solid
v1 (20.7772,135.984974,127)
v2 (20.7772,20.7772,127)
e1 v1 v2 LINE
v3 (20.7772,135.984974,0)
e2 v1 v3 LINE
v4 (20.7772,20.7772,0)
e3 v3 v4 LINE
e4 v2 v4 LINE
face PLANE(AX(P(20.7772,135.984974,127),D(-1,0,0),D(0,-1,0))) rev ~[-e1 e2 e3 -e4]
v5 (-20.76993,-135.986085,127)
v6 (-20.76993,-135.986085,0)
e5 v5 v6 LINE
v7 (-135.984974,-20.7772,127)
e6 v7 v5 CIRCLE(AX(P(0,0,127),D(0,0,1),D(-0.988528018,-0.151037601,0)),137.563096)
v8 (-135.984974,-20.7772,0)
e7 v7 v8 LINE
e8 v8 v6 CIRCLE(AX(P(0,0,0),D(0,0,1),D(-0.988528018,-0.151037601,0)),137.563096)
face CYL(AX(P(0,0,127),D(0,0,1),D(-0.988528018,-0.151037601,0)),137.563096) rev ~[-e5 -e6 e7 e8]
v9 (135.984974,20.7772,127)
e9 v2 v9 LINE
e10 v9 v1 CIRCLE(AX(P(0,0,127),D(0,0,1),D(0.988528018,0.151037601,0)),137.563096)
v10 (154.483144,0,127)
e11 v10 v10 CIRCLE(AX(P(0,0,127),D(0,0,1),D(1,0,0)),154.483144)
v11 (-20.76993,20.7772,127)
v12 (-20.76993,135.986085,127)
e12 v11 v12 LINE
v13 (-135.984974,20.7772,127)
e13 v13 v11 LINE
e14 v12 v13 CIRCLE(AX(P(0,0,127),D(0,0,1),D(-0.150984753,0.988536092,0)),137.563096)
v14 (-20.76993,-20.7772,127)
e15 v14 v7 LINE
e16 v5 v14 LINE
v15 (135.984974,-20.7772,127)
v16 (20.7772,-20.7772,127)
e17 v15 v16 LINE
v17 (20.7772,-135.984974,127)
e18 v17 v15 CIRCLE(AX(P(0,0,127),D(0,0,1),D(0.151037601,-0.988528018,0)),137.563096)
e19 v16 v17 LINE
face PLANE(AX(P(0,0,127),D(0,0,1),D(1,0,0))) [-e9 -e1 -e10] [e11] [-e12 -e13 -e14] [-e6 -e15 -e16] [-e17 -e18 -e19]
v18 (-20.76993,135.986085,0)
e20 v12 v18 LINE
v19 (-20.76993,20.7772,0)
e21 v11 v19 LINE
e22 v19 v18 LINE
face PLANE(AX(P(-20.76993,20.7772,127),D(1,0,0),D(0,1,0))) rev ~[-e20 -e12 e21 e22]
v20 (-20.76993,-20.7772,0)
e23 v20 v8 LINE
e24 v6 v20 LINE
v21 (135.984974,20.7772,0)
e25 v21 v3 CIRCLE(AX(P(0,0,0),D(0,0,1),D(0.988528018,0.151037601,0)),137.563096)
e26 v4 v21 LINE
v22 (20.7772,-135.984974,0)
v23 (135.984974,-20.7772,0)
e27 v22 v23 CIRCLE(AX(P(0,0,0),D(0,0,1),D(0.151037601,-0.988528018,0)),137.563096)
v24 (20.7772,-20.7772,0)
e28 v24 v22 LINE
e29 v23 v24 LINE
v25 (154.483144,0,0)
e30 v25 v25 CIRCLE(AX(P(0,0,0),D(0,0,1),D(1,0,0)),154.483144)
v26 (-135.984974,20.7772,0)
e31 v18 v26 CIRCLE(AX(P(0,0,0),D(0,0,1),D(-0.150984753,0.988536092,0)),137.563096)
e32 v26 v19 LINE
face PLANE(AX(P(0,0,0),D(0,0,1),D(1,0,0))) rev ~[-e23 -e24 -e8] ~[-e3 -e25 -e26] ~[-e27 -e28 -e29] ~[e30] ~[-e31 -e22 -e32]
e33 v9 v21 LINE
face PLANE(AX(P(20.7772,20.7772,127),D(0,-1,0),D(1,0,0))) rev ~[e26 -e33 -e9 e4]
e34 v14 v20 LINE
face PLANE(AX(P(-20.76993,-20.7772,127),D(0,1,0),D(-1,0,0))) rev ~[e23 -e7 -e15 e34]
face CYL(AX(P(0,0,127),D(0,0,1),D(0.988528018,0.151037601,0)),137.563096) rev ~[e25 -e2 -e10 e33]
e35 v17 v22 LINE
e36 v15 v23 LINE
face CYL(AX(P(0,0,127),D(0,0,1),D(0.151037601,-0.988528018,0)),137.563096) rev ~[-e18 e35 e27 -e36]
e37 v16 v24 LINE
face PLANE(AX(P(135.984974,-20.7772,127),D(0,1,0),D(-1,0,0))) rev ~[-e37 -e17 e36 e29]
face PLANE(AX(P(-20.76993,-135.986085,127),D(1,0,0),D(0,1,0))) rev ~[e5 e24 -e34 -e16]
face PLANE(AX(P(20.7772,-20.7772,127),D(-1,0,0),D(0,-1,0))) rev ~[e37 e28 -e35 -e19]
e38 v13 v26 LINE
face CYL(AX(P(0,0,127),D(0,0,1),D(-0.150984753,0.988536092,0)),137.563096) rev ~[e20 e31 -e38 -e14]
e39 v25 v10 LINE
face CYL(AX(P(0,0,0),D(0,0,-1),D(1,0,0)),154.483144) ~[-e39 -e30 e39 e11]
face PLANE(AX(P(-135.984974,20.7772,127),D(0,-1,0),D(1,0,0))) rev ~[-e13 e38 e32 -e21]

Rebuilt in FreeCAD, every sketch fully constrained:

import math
import FreeCAD as App
import Part
import Sketcher
from FreeCAD import Vector
Q = App.Units.Quantity

doc = App.newDocument("Part")
params = doc.addObject("Spreadsheet::Sheet", "Params")
for row, (alias, value) in enumerate([
    ("pad1_length", "5 in"),
    ("pocket1_length", "5 in"),
], start=1):
    params.set(f"A{row}", alias)
    params.set(f"B{row}", "=" + value)
    params.setAlias(f"B{row}", alias)

body = doc.addObject("PartDesign::Body", "Body")

sketch1 = body.newObject("Sketcher::SketchObject", "Sketch")
sketch1.AttachmentSupport = (doc.getObject("XY_Plane"), [""])
sketch1.MapMode = "FlatFace"
sketch1.addGeometry(Part.Circle(Vector(0, 0, 0), Vector(0, 0, 1), 154), False)
sketch1.addConstraint([
    Sketcher.Constraint("Coincident", 0, 3, -1, 1),
    Sketcher.Constraint("Diameter", 0, 308.966288),
])
pad1 = body.newObject("PartDesign::Pad", "Pad")
pad1.Profile = sketch1
pad1.setExpression("Length", "Params.pad1_length")

sketch2 = body.newObject("Sketcher::SketchObject", "Sketch001")
sketch2.AttachmentSupport = (doc.getObject("XY_Plane"), [""])
sketch2.MapMode = "FlatFace"
sketch2.AttachmentOffset = App.Placement(Vector(0, 0, 5 * 25.4), App.Rotation())
sketch2.addGeometry([
    Part.LineSegment(Vector(-21, 21, 0), Vector(-21, 136, 0)),
    Part.ArcOfCircle(Part.Circle(Vector(0, 0, 0), Vector(0, 0, 1), 138), math.radians(99), math.radians(171)),
    Part.LineSegment(Vector(-136, 21, 0), Vector(-21, 21, 0)),
    Part.LineSegment(Vector(21, 21, 0), Vector(136, 21, 0)),
    Part.ArcOfCircle(Part.Circle(Vector(0, 0, 0), Vector(0, 0, 1), 138), math.radians(9), math.radians(81)),
    Part.LineSegment(Vector(21, 136, 0), Vector(21, 21, 0)),
    Part.ArcOfCircle(Part.Circle(Vector(0, 0, 0), Vector(0, 0, 1), 138), math.radians(-81), math.radians(-9)),
    Part.LineSegment(Vector(136, -21, 0), Vector(21, -21, 0)),
    Part.LineSegment(Vector(21, -21, 0), Vector(21, -136, 0)),
    Part.ArcOfCircle(Part.Circle(Vector(0, 0, 0), Vector(0, 0, 1), 138), math.radians(-171), math.radians(-99)),
    Part.LineSegment(Vector(-21, -136, 0), Vector(-21, -21, 0)),
    Part.LineSegment(Vector(-21, -21, 0), Vector(-136, -21, 0)),
], False)
sketch2.addConstraint([
    Sketcher.Constraint("Coincident", 0, 2, 1, 1),
    Sketcher.Constraint("Coincident", 1, 2, 2, 1),
    Sketcher.Constraint("Coincident", 2, 2, 0, 1),
    Sketcher.Constraint("Coincident", 3, 2, 4, 1),
    Sketcher.Constraint("Coincident", 4, 2, 5, 1),
    Sketcher.Constraint("Coincident", 5, 2, 3, 1),
    Sketcher.Constraint("Coincident", 6, 2, 7, 1),
    Sketcher.Constraint("Coincident", 7, 2, 8, 1),
    Sketcher.Constraint("Coincident", 8, 2, 6, 1),
    Sketcher.Constraint("Coincident", 9, 2, 10, 1),
    Sketcher.Constraint("Coincident", 10, 2, 11, 1),
    Sketcher.Constraint("Coincident", 11, 2, 9, 1),
    Sketcher.Constraint("Vertical", 0),
    Sketcher.Constraint("Horizontal", 2),
    Sketcher.Constraint("Horizontal", 3),
    Sketcher.Constraint("Vertical", 5),
    Sketcher.Constraint("Horizontal", 7),
    Sketcher.Constraint("Vertical", 8),
    Sketcher.Constraint("Vertical", 10),
    Sketcher.Constraint("Horizontal", 11),
    Sketcher.Constraint("Coincident", 1, 3, -1, 1),
    Sketcher.Constraint("Coincident", 4, 3, -1, 1),
    Sketcher.Constraint("Coincident", 6, 3, -1, 1),
    Sketcher.Constraint("Coincident", 9, 3, -1, 1),
    Sketcher.Constraint("Equal", 1, 4),
    Sketcher.Constraint("Equal", 4, 6),
    Sketcher.Constraint("Equal", 6, 9),
    Sketcher.Constraint("Symmetric", 5, 2, 7, 2, -1),
    Sketcher.Constraint("Symmetric", 2, 2, 10, 2, -1),
    Sketcher.Constraint("Horizontal", 2, 2, 3, 2),
    Sketcher.Constraint("Equal", 7, 5),
    Sketcher.Constraint("DistanceY", -1, 1, 2, 2, Q("0.818 in")),
    Sketcher.Constraint("Radius", 1, 137.563096),
    Sketcher.Constraint("DistanceX", 2, 1, 2, 2, 115.215044),
])
pocket1 = body.newObject("PartDesign::Pocket", "Pocket")
pocket1.Profile = sketch2
pocket1.setExpression("Length", "Params.pocket1_length")

doc.recompute()
